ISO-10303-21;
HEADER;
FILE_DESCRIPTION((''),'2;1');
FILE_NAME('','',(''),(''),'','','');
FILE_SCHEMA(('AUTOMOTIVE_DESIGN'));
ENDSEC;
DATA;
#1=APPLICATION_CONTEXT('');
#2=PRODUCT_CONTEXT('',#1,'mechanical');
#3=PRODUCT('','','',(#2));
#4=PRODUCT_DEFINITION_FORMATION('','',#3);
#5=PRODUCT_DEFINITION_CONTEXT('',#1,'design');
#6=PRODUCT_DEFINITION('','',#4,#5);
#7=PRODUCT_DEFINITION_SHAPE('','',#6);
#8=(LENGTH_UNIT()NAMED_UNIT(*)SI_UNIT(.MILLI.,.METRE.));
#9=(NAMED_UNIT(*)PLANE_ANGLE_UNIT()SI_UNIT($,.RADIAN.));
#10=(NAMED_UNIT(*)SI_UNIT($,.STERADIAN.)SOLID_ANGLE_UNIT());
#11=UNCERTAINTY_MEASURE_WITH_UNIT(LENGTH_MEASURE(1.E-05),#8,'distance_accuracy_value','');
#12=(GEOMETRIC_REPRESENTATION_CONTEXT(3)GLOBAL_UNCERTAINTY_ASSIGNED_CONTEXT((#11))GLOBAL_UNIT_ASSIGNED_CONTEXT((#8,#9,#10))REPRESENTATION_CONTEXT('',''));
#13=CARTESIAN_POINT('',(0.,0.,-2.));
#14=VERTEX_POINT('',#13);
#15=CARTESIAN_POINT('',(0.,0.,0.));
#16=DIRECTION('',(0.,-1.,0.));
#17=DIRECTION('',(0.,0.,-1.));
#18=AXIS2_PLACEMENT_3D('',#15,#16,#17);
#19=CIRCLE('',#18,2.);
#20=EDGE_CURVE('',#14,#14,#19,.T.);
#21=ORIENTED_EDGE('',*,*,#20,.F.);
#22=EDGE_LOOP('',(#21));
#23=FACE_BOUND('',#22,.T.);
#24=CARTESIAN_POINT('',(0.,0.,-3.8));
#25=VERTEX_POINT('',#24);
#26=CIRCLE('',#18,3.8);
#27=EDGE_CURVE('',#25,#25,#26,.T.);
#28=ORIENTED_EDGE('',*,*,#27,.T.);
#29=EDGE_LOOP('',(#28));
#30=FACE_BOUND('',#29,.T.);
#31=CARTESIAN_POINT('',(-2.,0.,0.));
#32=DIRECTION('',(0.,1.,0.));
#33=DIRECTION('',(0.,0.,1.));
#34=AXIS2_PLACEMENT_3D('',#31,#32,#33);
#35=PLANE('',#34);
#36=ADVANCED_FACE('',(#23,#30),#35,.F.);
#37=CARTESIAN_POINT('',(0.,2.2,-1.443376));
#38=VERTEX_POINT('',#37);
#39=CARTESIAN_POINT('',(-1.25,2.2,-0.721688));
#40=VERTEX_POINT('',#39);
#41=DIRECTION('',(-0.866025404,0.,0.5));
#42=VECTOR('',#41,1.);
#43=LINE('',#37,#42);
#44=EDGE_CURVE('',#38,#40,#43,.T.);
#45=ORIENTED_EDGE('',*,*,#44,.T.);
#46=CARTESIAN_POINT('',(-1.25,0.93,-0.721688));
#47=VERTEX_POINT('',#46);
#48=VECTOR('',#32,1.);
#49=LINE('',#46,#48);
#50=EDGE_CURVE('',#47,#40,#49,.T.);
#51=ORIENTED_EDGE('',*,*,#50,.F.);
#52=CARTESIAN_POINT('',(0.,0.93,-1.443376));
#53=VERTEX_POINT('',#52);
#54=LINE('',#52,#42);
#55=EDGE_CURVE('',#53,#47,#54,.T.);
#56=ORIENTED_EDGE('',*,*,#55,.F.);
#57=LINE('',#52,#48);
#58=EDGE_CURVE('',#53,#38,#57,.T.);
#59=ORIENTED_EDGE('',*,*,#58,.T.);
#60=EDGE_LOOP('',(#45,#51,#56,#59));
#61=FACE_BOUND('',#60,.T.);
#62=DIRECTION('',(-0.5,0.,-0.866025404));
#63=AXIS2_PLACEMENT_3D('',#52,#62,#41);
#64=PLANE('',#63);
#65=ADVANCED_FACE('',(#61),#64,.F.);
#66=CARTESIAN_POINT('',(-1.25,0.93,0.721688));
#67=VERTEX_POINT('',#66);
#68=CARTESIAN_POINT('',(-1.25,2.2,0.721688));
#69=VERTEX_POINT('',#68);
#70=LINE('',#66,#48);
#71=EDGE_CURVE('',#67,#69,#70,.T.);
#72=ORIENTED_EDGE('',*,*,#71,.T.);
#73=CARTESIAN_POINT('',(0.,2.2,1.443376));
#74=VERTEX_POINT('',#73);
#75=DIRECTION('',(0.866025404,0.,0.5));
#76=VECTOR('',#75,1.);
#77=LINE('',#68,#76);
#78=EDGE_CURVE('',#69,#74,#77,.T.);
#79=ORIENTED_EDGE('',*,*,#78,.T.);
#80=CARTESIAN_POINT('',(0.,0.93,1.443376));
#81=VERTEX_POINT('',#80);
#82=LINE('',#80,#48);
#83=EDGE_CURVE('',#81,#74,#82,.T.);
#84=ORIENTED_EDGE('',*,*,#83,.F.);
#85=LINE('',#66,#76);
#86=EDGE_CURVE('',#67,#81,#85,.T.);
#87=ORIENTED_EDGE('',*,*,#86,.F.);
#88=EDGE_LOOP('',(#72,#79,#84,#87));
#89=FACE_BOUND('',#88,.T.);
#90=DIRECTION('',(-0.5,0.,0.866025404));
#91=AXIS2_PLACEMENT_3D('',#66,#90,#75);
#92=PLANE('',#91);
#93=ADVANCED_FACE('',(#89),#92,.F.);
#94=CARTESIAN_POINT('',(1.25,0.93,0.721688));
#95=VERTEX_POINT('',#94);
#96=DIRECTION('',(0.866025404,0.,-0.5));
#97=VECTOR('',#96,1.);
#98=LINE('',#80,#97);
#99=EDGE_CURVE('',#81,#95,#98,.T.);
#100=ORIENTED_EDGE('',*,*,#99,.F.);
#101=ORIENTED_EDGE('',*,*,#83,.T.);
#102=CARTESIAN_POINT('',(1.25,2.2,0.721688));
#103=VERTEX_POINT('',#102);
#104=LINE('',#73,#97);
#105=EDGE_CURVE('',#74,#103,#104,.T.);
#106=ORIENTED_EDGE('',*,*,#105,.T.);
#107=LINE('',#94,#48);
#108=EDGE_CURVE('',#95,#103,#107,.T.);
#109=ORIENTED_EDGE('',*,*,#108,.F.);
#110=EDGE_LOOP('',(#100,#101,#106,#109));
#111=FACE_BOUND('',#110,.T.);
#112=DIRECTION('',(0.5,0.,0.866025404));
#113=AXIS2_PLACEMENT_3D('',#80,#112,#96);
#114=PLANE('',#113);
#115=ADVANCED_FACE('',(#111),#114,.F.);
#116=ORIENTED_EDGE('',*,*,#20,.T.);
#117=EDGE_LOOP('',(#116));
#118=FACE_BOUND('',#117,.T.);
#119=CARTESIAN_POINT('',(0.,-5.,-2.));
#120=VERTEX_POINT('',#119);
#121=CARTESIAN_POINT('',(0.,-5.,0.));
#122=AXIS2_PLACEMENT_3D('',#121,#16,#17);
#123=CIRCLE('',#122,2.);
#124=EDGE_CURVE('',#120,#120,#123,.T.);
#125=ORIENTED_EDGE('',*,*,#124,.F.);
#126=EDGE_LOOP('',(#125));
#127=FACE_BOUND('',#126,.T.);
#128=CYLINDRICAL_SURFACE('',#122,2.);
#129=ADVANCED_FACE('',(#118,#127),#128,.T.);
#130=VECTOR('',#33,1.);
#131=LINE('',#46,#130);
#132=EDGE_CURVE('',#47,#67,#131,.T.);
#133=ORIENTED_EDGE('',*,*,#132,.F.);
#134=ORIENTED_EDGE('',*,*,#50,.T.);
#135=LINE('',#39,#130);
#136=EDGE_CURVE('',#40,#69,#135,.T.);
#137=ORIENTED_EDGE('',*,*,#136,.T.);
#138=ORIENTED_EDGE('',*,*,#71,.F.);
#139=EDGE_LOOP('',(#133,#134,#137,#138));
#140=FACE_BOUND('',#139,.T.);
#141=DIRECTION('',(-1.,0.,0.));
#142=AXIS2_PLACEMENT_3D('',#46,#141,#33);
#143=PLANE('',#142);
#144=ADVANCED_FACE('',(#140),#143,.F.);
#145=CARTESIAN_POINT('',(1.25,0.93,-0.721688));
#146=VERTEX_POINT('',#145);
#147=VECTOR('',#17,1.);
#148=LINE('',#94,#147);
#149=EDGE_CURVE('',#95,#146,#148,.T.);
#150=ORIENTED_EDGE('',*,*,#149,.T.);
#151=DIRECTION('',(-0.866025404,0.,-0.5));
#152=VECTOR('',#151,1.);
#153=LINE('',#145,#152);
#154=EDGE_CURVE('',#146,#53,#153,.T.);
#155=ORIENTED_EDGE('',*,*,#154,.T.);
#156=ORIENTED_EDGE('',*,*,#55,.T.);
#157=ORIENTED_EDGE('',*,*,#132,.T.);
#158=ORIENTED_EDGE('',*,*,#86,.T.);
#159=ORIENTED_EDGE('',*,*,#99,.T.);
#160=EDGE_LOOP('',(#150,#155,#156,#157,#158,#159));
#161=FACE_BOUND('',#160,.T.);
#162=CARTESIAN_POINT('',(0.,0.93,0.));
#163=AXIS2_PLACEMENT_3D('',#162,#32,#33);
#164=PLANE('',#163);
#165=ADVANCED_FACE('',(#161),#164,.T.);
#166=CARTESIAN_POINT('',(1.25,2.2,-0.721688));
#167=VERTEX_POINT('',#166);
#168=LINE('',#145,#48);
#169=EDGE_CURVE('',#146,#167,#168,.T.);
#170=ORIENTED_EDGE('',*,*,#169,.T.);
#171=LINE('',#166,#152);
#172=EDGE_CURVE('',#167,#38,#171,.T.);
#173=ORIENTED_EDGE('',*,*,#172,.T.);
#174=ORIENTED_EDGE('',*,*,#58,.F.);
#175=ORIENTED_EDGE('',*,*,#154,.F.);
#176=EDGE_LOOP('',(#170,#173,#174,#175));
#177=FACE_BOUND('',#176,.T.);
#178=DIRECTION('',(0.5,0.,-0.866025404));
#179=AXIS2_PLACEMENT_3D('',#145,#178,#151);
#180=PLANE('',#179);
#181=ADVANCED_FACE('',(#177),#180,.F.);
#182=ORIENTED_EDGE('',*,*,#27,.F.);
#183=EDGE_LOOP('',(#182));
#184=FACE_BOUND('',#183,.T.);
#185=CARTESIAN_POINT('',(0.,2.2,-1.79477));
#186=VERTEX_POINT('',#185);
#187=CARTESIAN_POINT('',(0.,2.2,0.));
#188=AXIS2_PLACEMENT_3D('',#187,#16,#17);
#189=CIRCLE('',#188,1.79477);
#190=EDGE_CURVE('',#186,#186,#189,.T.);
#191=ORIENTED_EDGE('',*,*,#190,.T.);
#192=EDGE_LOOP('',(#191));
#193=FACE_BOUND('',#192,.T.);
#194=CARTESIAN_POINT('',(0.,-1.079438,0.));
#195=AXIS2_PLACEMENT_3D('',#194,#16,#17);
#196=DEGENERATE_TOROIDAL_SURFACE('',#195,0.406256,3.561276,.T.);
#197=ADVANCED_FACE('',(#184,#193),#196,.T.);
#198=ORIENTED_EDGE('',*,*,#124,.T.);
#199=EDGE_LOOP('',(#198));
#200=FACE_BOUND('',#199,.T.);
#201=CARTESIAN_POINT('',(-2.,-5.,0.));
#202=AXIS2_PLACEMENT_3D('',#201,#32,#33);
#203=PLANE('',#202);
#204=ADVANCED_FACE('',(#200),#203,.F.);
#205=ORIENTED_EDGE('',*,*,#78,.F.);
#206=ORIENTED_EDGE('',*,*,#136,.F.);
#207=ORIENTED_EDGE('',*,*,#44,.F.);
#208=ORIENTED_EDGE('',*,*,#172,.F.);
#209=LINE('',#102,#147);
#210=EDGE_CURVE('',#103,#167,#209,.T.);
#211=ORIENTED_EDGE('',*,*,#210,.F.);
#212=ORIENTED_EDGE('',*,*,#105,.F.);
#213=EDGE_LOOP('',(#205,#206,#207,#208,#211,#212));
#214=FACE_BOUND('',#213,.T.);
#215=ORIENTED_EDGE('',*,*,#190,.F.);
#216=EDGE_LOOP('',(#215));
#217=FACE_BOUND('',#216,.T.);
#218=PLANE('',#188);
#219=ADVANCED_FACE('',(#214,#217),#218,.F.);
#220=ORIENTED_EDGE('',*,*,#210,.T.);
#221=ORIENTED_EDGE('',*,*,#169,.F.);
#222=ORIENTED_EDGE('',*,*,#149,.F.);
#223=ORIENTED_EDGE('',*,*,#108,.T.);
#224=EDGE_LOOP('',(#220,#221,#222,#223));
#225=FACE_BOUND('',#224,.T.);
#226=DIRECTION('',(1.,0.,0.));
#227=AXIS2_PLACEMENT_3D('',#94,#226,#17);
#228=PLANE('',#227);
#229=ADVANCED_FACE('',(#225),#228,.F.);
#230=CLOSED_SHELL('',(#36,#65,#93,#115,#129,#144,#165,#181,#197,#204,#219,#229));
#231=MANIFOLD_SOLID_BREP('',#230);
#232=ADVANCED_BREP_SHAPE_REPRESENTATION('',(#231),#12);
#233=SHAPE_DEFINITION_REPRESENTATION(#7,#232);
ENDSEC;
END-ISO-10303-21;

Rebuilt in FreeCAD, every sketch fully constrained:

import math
import FreeCAD as App
import Part
import Sketcher
from FreeCAD import Vector
Q = App.Units.Quantity

doc = App.newDocument("Part")
params = doc.addObject("Spreadsheet::Sheet", "Params")
for row, (alias, value) in enumerate([
    ("sketch1_width", "2 mm"),
    ("sketch1_height", "5 mm"),
    ("sketch1_width2", "1.8 mm"),
    ("sketch1_height2", "7.2 mm"),
    ("revolution_angle", "360 deg"),
    ("pocket1_length", "1.27 mm"),
], start=1):
    params.set(f"A{row}", alias)
    params.set(f"B{row}", "=" + value)
    params.setAlias(f"B{row}", alias)

body = doc.addObject("PartDesign::Body", "Body")

# Sketch on XY plane
sketch1 = body.newObject("Sketcher::SketchObject", "Sketch")
sketch1.AttachmentSupport = (doc.getObject("XY_Plane"), [""])
sketch1.MapMode = "FlatFace"
sketch1.addGeometry([
    Part.LineSegment(Vector(-3.8, 0, 0), Vector(-2, 0, 0)),  # 0
    Part.LineSegment(Vector(-2, 0, 0), Vector(-2, -5, 0)),  # 1
    Part.LineSegment(Vector(-2, -5, 0), Vector(0, -5, 0)),  # 2
    Part.LineSegment(Vector(0, -5, 0), Vector(0, 2.2, 0)),  # 3
    Part.LineSegment(Vector(0, 2.2, 0), Vector(-1.8, 2.2, 0)),  # 4
    Part.ArcOfCircle(Part.Circle(Vector(-0.4, -1.1, 0), Vector(0, 0, 1), 3.6), math.radians(113), math.radians(162)),  # 5
], False)
sketch1.addConstraint([
    Sketcher.Constraint("Coincident", 0, 2, 1, 1),
    Sketcher.Constraint("Coincident", 1, 2, 2, 1),
    Sketcher.Constraint("Coincident", 2, 2, 3, 1),
    Sketcher.Constraint("Coincident", 3, 2, 4, 1),
    Sketcher.Constraint("Coincident", 4, 2, 5, 1),
    Sketcher.Constraint("Coincident", 5, 2, 0, 1),
    Sketcher.Constraint("Horizontal", 0),
    Sketcher.Constraint("Vertical", 1),
    Sketcher.Constraint("Horizontal", 2),
    Sketcher.Constraint("Vertical", 3),
    Sketcher.Constraint("Horizontal", 4),
    Sketcher.Constraint("PointOnObject", 0, 2, -1),
    Sketcher.Constraint("PointOnObject", 2, 2, -2),
    Sketcher.Constraint("DistanceX", 2, 1, 2, 2, 2.0),
    Sketcher.Constraint("DistanceY", 1, 2, 1, 1, 5.0),
    Sketcher.Constraint("DistanceX", 0, 1, 0, 2, 1.8),
    Sketcher.Constraint("DistanceY", 3, 1, 3, 2, 7.2),
    Sketcher.Constraint("Radius", 5, 3.561276),
    Sketcher.Constraint("DistanceX", 4, 2, 4, 1, 1.79477),
])
sketch1.setExpression("Constraints[13]", "Params.sketch1_width")
sketch1.setExpression("Constraints[14]", "Params.sketch1_height")
sketch1.setExpression("Constraints[15]", "Params.sketch1_width2")
sketch1.setExpression("Constraints[16]", "Params.sketch1_height2")
revolution = body.newObject("PartDesign::Revolution", "Revolution")
revolution.Profile = sketch1
revolution.ReferenceAxis = (sketch1, ["V_Axis"])
revolution.setExpression("Angle", "Params.revolution_angle")

# Sketch on XZ plane
sketch2 = body.newObject("Sketcher::SketchObject", "Sketch001")
sketch2.AttachmentSupport = (doc.getObject("XZ_Plane"), [""])
sketch2.MapMode = "FlatFace"
sketch2.AttachmentOffset = App.Placement(Vector(0, 0, -2.2), App.Rotation())
sketch2.addGeometry([
    Part.LineSegment(Vector(-1.2, -0.7, 0), Vector(-1.2, 0.7, 0)),  # 0
    Part.LineSegment(Vector(-1.2, 0.7, 0), Vector(0, 1.4, 0)),  # 1
    Part.LineSegment(Vector(0, 1.4, 0), Vector(1.2, 0.7, 0)),  # 2
    Part.LineSegment(Vector(1.2, 0.7, 0), Vector(1.2, -0.7, 0)),  # 3
    Part.LineSegment(Vector(1.2, -0.7, 0), Vector(0, -1.4, 0)),  # 4
    Part.LineSegment(Vector(0, -1.4, 0), Vector(-1.2, -0.7, 0)),  # 5
], False)
sketch2.addConstraint([
    Sketcher.Constraint("Coincident", 0, 2, 1, 1),
    Sketcher.Constraint("Coincident", 1, 2, 2, 1),
    Sketcher.Constraint("Coincident", 2, 2, 3, 1),
    Sketcher.Constraint("Coincident", 3, 2, 4, 1),
    Sketcher.Constraint("Coincident", 4, 2, 5, 1),
    Sketcher.Constraint("Coincident", 5, 2, 0, 1),
    Sketcher.Constraint("Vertical", 0),
    Sketcher.Constraint("Vertical", 3),
    Sketcher.Constraint("Symmetric", 0, 2, 3, 2, -1, 1),
    Sketcher.Constraint("Symmetric", 1, 2, 4, 2, -1, 1),
    Sketcher.Constraint("PointOnObject", 1, 2, -2),
    Sketcher.Constraint("Parallel", 2, 5),
    Sketcher.Constraint("Horizontal", 0, 2, 2, 2),
    Sketcher.Constraint("Angle", 1, Q("30 deg")),
    Sketcher.Constraint("DistanceX", 0, 2, 2, 2, 2.5),
    Sketcher.Constraint("DistanceY", 0, 1, 0, 2, 1.443376),
])
pocket1 = body.newObject("PartDesign::Pocket", "Pocket")
pocket1.Profile = sketch2
pocket1.setExpression("Length", "Params.pocket1_length")
pocket1.Reversed = True

doc.recompute()
